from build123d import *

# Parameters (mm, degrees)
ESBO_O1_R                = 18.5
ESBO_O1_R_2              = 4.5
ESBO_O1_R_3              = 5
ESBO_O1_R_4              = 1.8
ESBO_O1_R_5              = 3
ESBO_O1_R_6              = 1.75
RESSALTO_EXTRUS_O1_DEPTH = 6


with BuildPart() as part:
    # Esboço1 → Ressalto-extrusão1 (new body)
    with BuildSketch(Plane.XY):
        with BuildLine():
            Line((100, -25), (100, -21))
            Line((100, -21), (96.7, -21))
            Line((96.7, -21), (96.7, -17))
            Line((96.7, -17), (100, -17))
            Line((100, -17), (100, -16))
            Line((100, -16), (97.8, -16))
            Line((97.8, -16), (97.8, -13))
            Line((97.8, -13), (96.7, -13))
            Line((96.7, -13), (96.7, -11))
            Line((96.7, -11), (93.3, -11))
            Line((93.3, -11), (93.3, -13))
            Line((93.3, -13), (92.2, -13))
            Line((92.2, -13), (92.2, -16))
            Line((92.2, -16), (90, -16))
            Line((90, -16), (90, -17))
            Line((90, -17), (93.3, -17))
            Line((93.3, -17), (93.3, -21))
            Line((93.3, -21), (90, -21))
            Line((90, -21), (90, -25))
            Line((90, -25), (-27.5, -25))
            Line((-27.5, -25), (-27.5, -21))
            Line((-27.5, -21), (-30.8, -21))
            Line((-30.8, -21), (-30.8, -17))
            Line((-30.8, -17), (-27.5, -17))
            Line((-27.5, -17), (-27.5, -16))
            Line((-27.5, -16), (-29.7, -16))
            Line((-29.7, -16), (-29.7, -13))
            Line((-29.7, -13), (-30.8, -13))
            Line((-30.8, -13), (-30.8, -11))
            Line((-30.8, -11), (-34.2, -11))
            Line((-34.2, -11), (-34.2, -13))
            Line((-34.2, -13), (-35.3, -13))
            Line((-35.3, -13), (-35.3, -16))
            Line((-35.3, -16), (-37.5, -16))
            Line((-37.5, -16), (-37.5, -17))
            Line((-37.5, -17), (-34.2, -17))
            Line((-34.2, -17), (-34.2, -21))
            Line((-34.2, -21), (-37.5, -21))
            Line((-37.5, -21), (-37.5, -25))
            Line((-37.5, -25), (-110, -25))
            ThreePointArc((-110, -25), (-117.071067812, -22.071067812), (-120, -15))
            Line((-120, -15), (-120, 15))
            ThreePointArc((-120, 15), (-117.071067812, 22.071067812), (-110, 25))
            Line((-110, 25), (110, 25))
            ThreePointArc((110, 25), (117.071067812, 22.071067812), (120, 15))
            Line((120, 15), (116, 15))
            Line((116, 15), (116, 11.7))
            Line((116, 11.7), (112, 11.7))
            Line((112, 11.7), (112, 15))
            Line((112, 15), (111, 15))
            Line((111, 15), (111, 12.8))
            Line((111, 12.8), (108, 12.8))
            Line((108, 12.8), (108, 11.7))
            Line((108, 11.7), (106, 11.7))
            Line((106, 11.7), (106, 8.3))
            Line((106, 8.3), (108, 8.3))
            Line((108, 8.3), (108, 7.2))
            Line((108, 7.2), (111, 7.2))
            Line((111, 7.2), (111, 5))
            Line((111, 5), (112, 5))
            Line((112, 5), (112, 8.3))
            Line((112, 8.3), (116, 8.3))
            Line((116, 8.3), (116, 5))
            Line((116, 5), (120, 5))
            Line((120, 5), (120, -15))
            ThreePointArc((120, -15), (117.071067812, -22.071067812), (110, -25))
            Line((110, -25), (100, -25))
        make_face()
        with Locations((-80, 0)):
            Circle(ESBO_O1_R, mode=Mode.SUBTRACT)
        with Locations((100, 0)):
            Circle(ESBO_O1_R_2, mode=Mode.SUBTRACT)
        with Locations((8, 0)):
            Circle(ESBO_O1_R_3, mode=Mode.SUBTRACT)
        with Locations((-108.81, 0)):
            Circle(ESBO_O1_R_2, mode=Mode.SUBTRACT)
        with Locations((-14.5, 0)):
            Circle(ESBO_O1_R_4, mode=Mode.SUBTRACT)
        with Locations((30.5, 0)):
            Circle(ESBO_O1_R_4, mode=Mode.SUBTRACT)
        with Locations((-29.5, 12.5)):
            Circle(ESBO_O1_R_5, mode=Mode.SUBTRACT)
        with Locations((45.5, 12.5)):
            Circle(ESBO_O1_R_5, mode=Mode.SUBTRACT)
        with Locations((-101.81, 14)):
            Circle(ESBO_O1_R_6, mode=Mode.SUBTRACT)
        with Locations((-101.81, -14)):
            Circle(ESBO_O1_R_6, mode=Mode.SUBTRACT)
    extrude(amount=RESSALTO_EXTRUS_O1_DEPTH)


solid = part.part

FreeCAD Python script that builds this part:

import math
import FreeCAD as App
import Part
import Sketcher
from FreeCAD import Vector
Q = App.Units.Quantity

doc = App.newDocument("Part")
body = doc.addObject("PartDesign::Body", "Body")

# Sketch on XY plane
sketch1 = body.newObject("Sketcher::SketchObject", "Sketch")
sketch1.AttachmentSupport = (doc.getObject("XY_Plane"), [""])
sketch1.MapMode = "FlatFace"
sketch1.addGeometry(Part.LineSegment(Vector(100, -21, 0), Vector(100, -25, 0)), False)
sketch1.addGeometry(Part.LineSegment(Vector(100, -25, 0), Vector(110, -25, 0)), False)
sketch1.addGeometry(Part.ArcOfCircle(Part.Circle(Vector(110, -15, 0), Vector(0, 0, 1), 10), math.radians(-90), math.radians(0)), False)
sketch1.addGeometry(Part.LineSegment(Vector(120, -15, 0), Vector(120, 5, 0)), False)
sketch1.addGeometry(Part.LineSegment(Vector(120, 5, 0), Vector(116, 5, 0)), False)
sketch1.addGeometry(Part.LineSegment(Vector(116, 5, 0), Vector(116, 8.3, 0)), False)
sketch1.addGeometry(Part.LineSegment(Vector(116, 8.3, 0), Vector(112, 8.3, 0)), False)
sketch1.addGeometry(Part.LineSegment(Vector(112, 8.3, 0), Vector(112, 5, 0)), False)
sketch1.addGeometry(Part.LineSegment(Vector(112, 5, 0), Vector(111, 5, 0)), False)
sketch1.addGeometry(Part.LineSegment(Vector(111, 5, 0), Vector(111, 7.2, 0)), False)
sketch1.addGeometry(Part.LineSegment(Vector(111, 7.2, 0), Vector(108, 7.2, 0)), False)
sketch1.addGeometry(Part.LineSegment(Vector(108, 7.2, 0), Vector(108, 8.3, 0)), False)
sketch1.addGeometry(Part.LineSegment(Vector(108, 8.3, 0), Vector(106, 8.3, 0)), False)
sketch1.addGeometry(Part.LineSegment(Vector(106, 8.3, 0), Vector(106, 11.7, 0)), False)
sketch1.addGeometry(Part.LineSegment(Vector(106, 11.7, 0), Vector(108, 11.7, 0)), False)
sketch1.addGeometry(Part.LineSegment(Vector(108, 11.7, 0), Vector(108, 12.8, 0)), False)
sketch1.addGeometry(Part.LineSegment(Vector(108, 12.8, 0), Vector(111, 12.8, 0)), False)
sketch1.addGeometry(Part.LineSegment(Vector(111, 12.8, 0), Vector(111, 15, 0)), False)
sketch1.addGeometry(Part.LineSegment(Vector(111, 15, 0), Vector(112, 15, 0)), False)
sketch1.addGeometry(Part.LineSegment(Vector(112, 15, 0), Vector(112, 11.7, 0)), False)
sketch1.addGeometry(Part.LineSegment(Vector(112, 11.7, 0), Vector(116, 11.7, 0)), False)
sketch1.addGeometry(Part.LineSegment(Vector(116, 11.7, 0), Vector(116, 15, 0)), False)
sketch1.addGeometry(Part.LineSegment(Vector(116, 15, 0), Vector(120, 15, 0)), False)
sketch1.addGeometry(Part.ArcOfCircle(Part.Circle(Vector(110, 15, 0), Vector(0, 0, 1), 10), math.radians(0), math.radians(90)), False)
sketch1.addGeometry(Part.LineSegment(Vector(110, 25, 0), Vector(-110, 25, 0)), False)
sketch1.addGeometry(Part.ArcOfCircle(Part.Circle(Vector(-110, 15, 0), Vector(0, 0, 1), 10), math.radians(90), math.radians(180)), False)
sketch1.addGeometry(Part.LineSegment(Vector(-120, 15, 0), Vector(-120, -15, 0)), False)
sketch1.addGeometry(Part.ArcOfCircle(Part.Circle(Vector(-110, -15, 0), Vector(0, 0, 1), 10), math.radians(180), math.radians(270)), False)
sketch1.addGeometry(Part.LineSegment(Vector(-110, -25, 0), Vector(-37.5, -25, 0)), False)
sketch1.addGeometry(Part.LineSegment(Vector(-37.5, -25, 0), Vector(-37.5, -21, 0)), False)
sketch1.addGeometry(Part.LineSegment(Vector(-37.5, -21, 0), Vector(-34.2, -21, 0)), False)
sketch1.addGeometry(Part.LineSegment(Vector(-34.2, -21, 0), Vector(-34.2, -17, 0)), False)
sketch1.addGeometry(Part.LineSegment(Vector(-34.2, -17, 0), Vector(-37.5, -17, 0)), False)
sketch1.addGeometry(Part.LineSegment(Vector(-37.5, -17, 0), Vector(-37.5, -16, 0)), False)
sketch1.addGeometry(Part.LineSegment(Vector(-37.5, -16, 0), Vector(-35.3, -16, 0)), False)
sketch1.addGeometry(Part.LineSegment(Vector(-35.3, -16, 0), Vector(-35.3, -13, 0)), False)
sketch1.addGeometry(Part.LineSegment(Vector(-35.3, -13, 0), Vector(-34.2, -13, 0)), False)
sketch1.addGeometry(Part.LineSegment(Vector(-34.2, -13, 0), Vector(-34.2, -11, 0)), False)
sketch1.addGeometry(Part.LineSegment(Vector(-34.2, -11, 0), Vector(-30.8, -11, 0)), False)
sketch1.addGeometry(Part.LineSegment(Vector(-30.8, -11, 0), Vector(-30.8, -13, 0)), False)
sketch1.addGeometry(Part.LineSegment(Vector(-30.8, -13, 0), Vector(-29.7, -13, 0)), False)
sketch1.addGeometry(Part.LineSegment(Vector(-29.7, -13, 0), Vector(-29.7, -16, 0)), False)
sketch1.addGeometry(Part.LineSegment(Vector(-29.7, -16, 0), Vector(-27.5, -16, 0)), False)
sketch1.addGeometry(Part.LineSegment(Vector(-27.5, -16, 0), Vector(-27.5, -17, 0)), False)
sketch1.addGeometry(Part.LineSegment(Vector(-27.5, -17, 0), Vector(-30.8, -17, 0)), False)
sketch1.addGeometry(Part.LineSegment(Vector(-30.8, -17, 0), Vector(-30.8, -21, 0)), False)
sketch1.addGeometry(Part.LineSegment(Vector(-30.8, -21, 0), Vector(-27.5, -21, 0)), False)
sketch1.addGeometry(Part.LineSegment(Vector(-27.5, -21, 0), Vector(-27.5, -25, 0)), False)
sketch1.addGeometry(Part.LineSegment(Vector(-27.5, -25, 0), Vector(90, -25, 0)), False)
sketch1.addGeometry(Part.LineSegment(Vector(90, -25, 0), Vector(90, -21, 0)), False)
sketch1.addGeometry(Part.LineSegment(Vector(90, -21, 0), Vector(93.3, -21, 0)), False)
sketch1.addGeometry(Part.LineSegment(Vector(93.3, -21, 0), Vector(93.3, -17, 0)), False)
sketch1.addGeometry(Part.LineSegment(Vector(93.3, -17, 0), Vector(90, -17, 0)), False)
sketch1.addGeometry(Part.LineSegment(Vector(90, -17, 0), Vector(90, -16, 0)), False)
sketch1.addGeometry(Part.LineSegment(Vector(90, -16, 0), Vector(92.2, -16, 0)), False)
sketch1.addGeometry(Part.LineSegment(Vector(92.2, -16, 0), Vector(92.2, -13, 0)), False)
sketch1.addGeometry(Part.LineSegment(Vector(92.2, -13, 0), Vector(93.3, -13, 0)), False)
sketch1.addGeometry(Part.LineSegment(Vector(93.3, -13, 0), Vector(93.3, -11, 0)), False)
sketch1.addGeometry(Part.LineSegment(Vector(93.3, -11, 0), Vector(96.7, -11, 0)), False)
sketch1.addGeometry(Part.LineSegment(Vector(96.7, -11, 0), Vector(96.7, -13, 0)), False)
sketch1.addGeometry(Part.LineSegment(Vector(96.7, -13, 0), Vector(97.8, -13, 0)), False)
sketch1.addGeometry(Part.LineSegment(Vector(97.8, -13, 0), Vector(97.8, -16, 0)), False)
sketch1.addGeometry(Part.LineSegment(Vector(97.8, -16, 0), Vector(100, -16, 0)), False)
sketch1.addGeometry(Part.LineSegment(Vector(100, -16, 0), Vector(100, -17, 0)), False)
sketch1.addGeometry(Part.LineSegment(Vector(100, -17, 0), Vector(96.7, -17, 0)), False)
sketch1.addGeometry(Part.LineSegment(Vector(96.7, -17, 0), Vector(96.7, -21, 0)), False)
sketch1.addGeometry(Part.LineSegment(Vector(96.7, -21, 0), Vector(100, -21, 0)), False)
sketch1.addGeometry(Part.Circle(Vector(-101.81, -14, 0), Vector(0, 0, 1), 1.75), False)
sketch1.addGeometry(Part.Circle(Vector(100, 0, 0), Vector(0, 0, 1), 4.5), False)
sketch1.addGeometry(Part.Circle(Vector(30.5, 0, 0), Vector(0, 0, 1), 1.8), False)
sketch1.addGeometry(Part.Circle(Vector(8, 0, 0), Vector(0, 0, 1), 5), False)
sketch1.addGeometry(Part.Circle(Vector(45.5, 12.5, 0), Vector(0, 0, 1), 3), False)
sketch1.addGeometry(Part.Circle(Vector(-14.5, 0, 0), Vector(0, 0, 1), 1.8), False)
sketch1.addGeometry(Part.Circle(Vector(-80, 0, 0), Vector(0, 0, 1), 18.5), False)
sketch1.addGeometry(Part.Circle(Vector(-108.81, 0, 0), Vector(0, 0, 1), 4.5), False)
sketch1.addGeometry(Part.Circle(Vector(-29.5, 12.5, 0), Vector(0, 0, 1), 3), False)
sketch1.addGeometry(Part.Circle(Vector(-101.81, 14, 0), Vector(0, 0, 1), 1.75), False)
sketch1.addConstraint(Sketcher.Constraint("Coincident", 0, 2, 1, 1))
sketch1.addConstraint(Sketcher.Constraint("Tangent", 1, 2, 2, 1))
sketch1.addConstraint(Sketcher.Constraint("Tangent", 2, 2, 3, 1))
sketch1.addConstraint(Sketcher.Constraint("Coincident", 3, 2, 4, 1))
sketch1.addConstraint(Sketcher.Constraint("Coincident", 4, 2, 5, 1))
sketch1.addConstraint(Sketcher.Constraint("Coincident", 5, 2, 6, 1))
sketch1.addConstraint(Sketcher.Constraint("Coincident", 6, 2, 7, 1))
sketch1.addConstraint(Sketcher.Constraint("Coincident", 7, 2, 8, 1))
sketch1.addConstraint(Sketcher.Constraint("Coincident", 8, 2, 9, 1))
sketch1.addConstraint(Sketcher.Constraint("Coincident", 9, 2, 10, 1))
sketch1.addConstraint(Sketcher.Constraint("Coincident", 10, 2, 11, 1))
sketch1.addConstraint(Sketcher.Constraint("Coincident", 11, 2, 12, 1))
sketch1.addConstraint(Sketcher.Constraint("Coincident", 12, 2, 13, 1))
sketch1.addConstraint(Sketcher.Constraint("Coincident", 13, 2, 14, 1))
sketch1.addConstraint(Sketcher.Constraint("Coincident", 14, 2, 15, 1))
sketch1.addConstraint(Sketcher.Constraint("Coincident", 15, 2, 16, 1))
sketch1.addConstraint(Sketcher.Constraint("Coincident", 16, 2, 17, 1))
sketch1.addConstraint(Sketcher.Constraint("Coincident", 17, 2, 18, 1))
sketch1.addConstraint(Sketcher.Constraint("Coincident", 18, 2, 19, 1))
sketch1.addConstraint(Sketcher.Constraint("Coincident", 19, 2, 20, 1))
sketch1.addConstraint(Sketcher.Constraint("Coincident", 20, 2, 21, 1))
sketch1.addConstraint(Sketcher.Constraint("Coincident", 21, 2, 22, 1))
sketch1.addConstraint(Sketcher.Constraint("Coincident", 22, 2, 23, 1))
sketch1.addConstraint(Sketcher.Constraint("Tangent", 23, 2, 24, 1))
sketch1.addConstraint(Sketcher.Constraint("Tangent", 24, 2, 25, 1))
sketch1.addConstraint(Sketcher.Constraint("Tangent", 25, 2, 26, 1))
sketch1.addConstraint(Sketcher.Constraint("Tangent", 26, 2, 27, 1))
sketch1.addConstraint(Sketcher.Constraint("Tangent", 27, 2, 28, 1))
sketch1.addConstraint(Sketcher.Constraint("Coincident", 28, 2, 29, 1))
sketch1.addConstraint(Sketcher.Constraint("Coincident", 29, 2, 30, 1))
sketch1.addConstraint(Sketcher.Constraint("Coincident", 30, 2, 31, 1))
sketch1.addConstraint(Sketcher.Constraint("Coincident", 31, 2, 32, 1))
sketch1.addConstraint(Sketcher.Constraint("Coincident", 32, 2, 33, 1))
sketch1.addConstraint(Sketcher.Constraint("Coincident", 33, 2, 34, 1))
sketch1.addConstraint(Sketcher.Constraint("Coincident", 34, 2, 35, 1))
sketch1.addConstraint(Sketcher.Constraint("Coincident", 35, 2, 36, 1))
sketch1.addConstraint(Sketcher.Constraint("Coincident", 36, 2, 37, 1))
sketch1.addConstraint(Sketcher.Constraint("Coincident", 37, 2, 38, 1))
sketch1.addConstraint(Sketcher.Constraint("Coincident", 38, 2, 39, 1))
sketch1.addConstraint(Sketcher.Constraint("Coincident", 39, 2, 40, 1))
sketch1.addConstraint(Sketcher.Constraint("Coincident", 40, 2, 41, 1))
sketch1.addConstraint(Sketcher.Constraint("Coincident", 41, 2, 42, 1))
sketch1.addConstraint(Sketcher.Constraint("Coincident", 42, 2, 43, 1))
sketch1.addConstraint(Sketcher.Constraint("Coincident", 43, 2, 44, 1))
sketch1.addConstraint(Sketcher.Constraint("Coincident", 44, 2, 45, 1))
sketch1.addConstraint(Sketcher.Constraint("Coincident", 45, 2, 46, 1))
sketch1.addConstraint(Sketcher.Constraint("Coincident", 46, 2, 47, 1))
sketch1.addConstraint(Sketcher.Constraint("Coincident", 47, 2, 48, 1))
sketch1.addConstraint(Sketcher.Constraint("Coincident", 48, 2, 49, 1))
sketch1.addConstraint(Sketcher.Constraint("Coincident", 49, 2, 50, 1))
sketch1.addConstraint(Sketcher.Constraint("Coincident", 50, 2, 51, 1))
sketch1.addConstraint(Sketcher.Constraint("Coincident", 51, 2, 52, 1))
sketch1.addConstraint(Sketcher.Constraint("Coincident", 52, 2, 53, 1))
sketch1.addConstraint(Sketcher.Constraint("Coincident", 53, 2, 54, 1))
sketch1.addConstraint(Sketcher.Constraint("Coincident", 54, 2, 55, 1))
sketch1.addConstraint(Sketcher.Constraint("Coincident", 55, 2, 56, 1))
sketch1.addConstraint(Sketcher.Constraint("Coincident", 56, 2, 57, 1))
sketch1.addConstraint(Sketcher.Constraint("Coincident", 57, 2, 58, 1))
sketch1.addConstraint(Sketcher.Constraint("Coincident", 58, 2, 59, 1))
sketch1.addConstraint(Sketcher.Constraint("Coincident", 59, 2, 60, 1))
sketch1.addConstraint(Sketcher.Constraint("Coincident", 60, 2, 61, 1))
sketch1.addConstraint(Sketcher.Constraint("Coincident", 61, 2, 62, 1))
sketch1.addConstraint(Sketcher.Constraint("Coincident", 62, 2, 63, 1))
sketch1.addConstraint(Sketcher.Constraint("Coincident", 63, 2, 64, 1))
sketch1.addConstraint(Sketcher.Constraint("Coincident", 64, 2, 65, 1))
sketch1.addConstraint(Sketcher.Constraint("Coincident", 65, 2, 66, 1))
sketch1.addConstraint(Sketcher.Constraint("Coincident", 66, 2, 0, 1))
sketch1.addConstraint(Sketcher.Constraint("Vertical", 0))
sketch1.addConstraint(Sketcher.Constraint("Horizontal", 1))
sketch1.addConstraint(Sketcher.Constraint("Vertical", 3))
sketch1.addConstraint(Sketcher.Constraint("Horizontal", 4))
sketch1.addConstraint(Sketcher.Constraint("Vertical", 5))
sketch1.addConstraint(Sketcher.Constraint("Horizontal", 6))
sketch1.addConstraint(Sketcher.Constraint("Vertical", 7))
sketch1.addConstraint(Sketcher.Constraint("Horizontal", 8))
sketch1.addConstraint(Sketcher.Constraint("Vertical", 9))
sketch1.addConstraint(Sketcher.Constraint("Horizontal", 10))
sketch1.addConstraint(Sketcher.Constraint("Vertical", 11))
sketch1.addConstraint(Sketcher.Constraint("Horizontal", 12))
sketch1.addConstraint(Sketcher.Constraint("Vertical", 13))
sketch1.addConstraint(Sketcher.Constraint("Horizontal", 14))
sketch1.addConstraint(Sketcher.Constraint("Vertical", 15))
sketch1.addConstraint(Sketcher.Constraint("Horizontal", 16))
sketch1.addConstraint(Sketcher.Constraint("Vertical", 17))
sketch1.addConstraint(Sketcher.Constraint("Horizontal", 18))
sketch1.addConstraint(Sketcher.Constraint("Vertical", 19))
sketch1.addConstraint(Sketcher.Constraint("Horizontal", 20))
sketch1.addConstraint(Sketcher.Constraint("Vertical", 21))
sketch1.addConstraint(Sketcher.Constraint("Horizontal", 22))
sketch1.addConstraint(Sketcher.Constraint("Horizontal", 24))
sketch1.addConstraint(Sketcher.Constraint("Vertical", 26))
sketch1.addConstraint(Sketcher.Constraint("Horizontal", 28))
sketch1.addConstraint(Sketcher.Constraint("Vertical", 29))
sketch1.addConstraint(Sketcher.Constraint("Horizontal", 30))
sketch1.addConstraint(Sketcher.Constraint("Vertical", 31))
sketch1.addConstraint(Sketcher.Constraint("Horizontal", 32))
sketch1.addConstraint(Sketcher.Constraint("Vertical", 33))
sketch1.addConstraint(Sketcher.Constraint("Horizontal", 34))
sketch1.addConstraint(Sketcher.Constraint("Vertical", 35))
sketch1.addConstraint(Sketcher.Constraint("Horizontal", 36))
sketch1.addConstraint(Sketcher.Constraint("Vertical", 37))
sketch1.addConstraint(Sketcher.Constraint("Horizontal", 38))
sketch1.addConstraint(Sketcher.Constraint("Vertical", 39))
sketch1.addConstraint(Sketcher.Constraint("Horizontal", 40))
sketch1.addConstraint(Sketcher.Constraint("Vertical", 41))
sketch1.addConstraint(Sketcher.Constraint("Horizontal", 42))
sketch1.addConstraint(Sketcher.Constraint("Vertical", 43))
sketch1.addConstraint(Sketcher.Constraint("Horizontal", 44))
sketch1.addConstraint(Sketcher.Constraint("Vertical", 45))
sketch1.addConstraint(Sketcher.Constraint("Horizontal", 46))
sketch1.addConstraint(Sketcher.Constraint("Vertical", 47))
sketch1.addConstraint(Sketcher.Constraint("Horizontal", 48))
sketch1.addConstraint(Sketcher.Constraint("Vertical", 49))
sketch1.addConstraint(Sketcher.Constraint("Horizontal", 50))
sketch1.addConstraint(Sketcher.Constraint("Vertical", 51))
sketch1.addConstraint(Sketcher.Constraint("Horizontal", 52))
sketch1.addConstraint(Sketcher.Constraint("Vertical", 53))
sketch1.addConstraint(Sketcher.Constraint("Horizontal", 54))
sketch1.addConstraint(Sketcher.Constraint("Vertical", 55))
sketch1.addConstraint(Sketcher.Constraint("Horizontal", 56))
sketch1.addConstraint(Sketcher.Constraint("Vertical", 57))
sketch1.addConstraint(Sketcher.Constraint("Horizontal", 58))
sketch1.addConstraint(Sketcher.Constraint("Vertical", 59))
sketch1.addConstraint(Sketcher.Constraint("Horizontal", 60))
sketch1.addConstraint(Sketcher.Constraint("Vertical", 61))
sketch1.addConstraint(Sketcher.Constraint("Horizontal", 62))
sketch1.addConstraint(Sketcher.Constraint("Vertical", 63))
sketch1.addConstraint(Sketcher.Constraint("Horizontal", 64))
sketch1.addConstraint(Sketcher.Constraint("Vertical", 65))
sketch1.addConstraint(Sketcher.Constraint("Horizontal", 66))
sketch1.addConstraint(Sketcher.Constraint("Equal", 2, 23))
sketch1.addConstraint(Sketcher.Constraint("Equal", 23, 25))
sketch1.addConstraint(Sketcher.Constraint("Equal", 25, 27))
sketch1.addConstraint(Sketcher.Constraint("Equal", 69, 72))
sketch1.addConstraint(Sketcher.Constraint("Equal", 68, 74))
sketch1.addConstraint(Sketcher.Constraint("Equal", 71, 75))
sketch1.addConstraint(Sketcher.Constraint("Equal", 67, 76))
sketch1.addConstraint(Sketcher.Constraint("Symmetric", 2, 3, 25, 3, -1, 1))
sketch1.addConstraint(Sketcher.Constraint("Symmetric", 23, 3, 27, 3, -1, 1))
sketch1.addConstraint(Sketcher.Constraint("Symmetric", 67, 3, 76, 3, -1))
sketch1.addConstraint(Sketcher.Constraint("PointOnObject", 68, 3, -1))
sketch1.addConstraint(Sketcher.Constraint("PointOnObject", 69, 3, -1))
sketch1.addConstraint(Sketcher.Constraint("PointOnObject", 70, 3, -1))
sketch1.addConstraint(Sketcher.Constraint("PointOnObject", 72, 3, -1))
sketch1.addConstraint(Sketcher.Constraint("PointOnObject", 73, 3, -1))
sketch1.addConstraint(Sketcher.Constraint("PointOnObject", 74, 3, -1))
sketch1.addConstraint(Sketcher.Constraint("Horizontal", 71, 3, 75, 3))
sketch1.addConstraint(Sketcher.Constraint("Horizontal", 4, 2, 7, 2))
sketch1.addConstraint(Sketcher.Constraint("Horizontal", 6, 2, 11, 2))
sketch1.addConstraint(Sketcher.Constraint("Horizontal", 25, 3, 17, 2))
sketch1.addConstraint(Sketcher.Constraint("Horizontal", 14, 2, 19, 2))
sketch1.addConstraint(Sketcher.Constraint("Horizontal", 18, 2, 21, 2))
sketch1.addConstraint(Sketcher.Constraint("Horizontal", 36, 2, 39, 2))
sketch1.addConstraint(Sketcher.Constraint("Horizontal", 34, 2, 41, 2))
sketch1.addConstraint(Sketcher.Constraint("Horizontal", 32, 2, 43, 2))
sketch1.addConstraint(Sketcher.Constraint("Horizontal", 30, 2, 45, 2))
sketch1.addConstraint(Sketcher.Constraint("Horizontal", 28, 2, 47, 2))
sketch1.addConstraint(Sketcher.Constraint("Horizontal", 46, 2, 49, 2))
sketch1.addConstraint(Sketcher.Constraint("Horizontal", 44, 2, 51, 2))
sketch1.addConstraint(Sketcher.Constraint("Horizontal", 42, 2, 53, 2))
sketch1.addConstraint(Sketcher.Constraint("Horizontal", 40, 2, 55, 2))
sketch1.addConstraint(Sketcher.Constraint("Horizontal", 38, 2, 57, 2))
sketch1.addConstraint(Sketcher.Constraint("Horizontal", 56, 2, 59, 2))
sketch1.addConstraint(Sketcher.Constraint("Horizontal", 54, 2, 61, 2))
sketch1.addConstraint(Sketcher.Constraint("Horizontal", 52, 2, 63, 2))
sketch1.addConstraint(Sketcher.Constraint("Horizontal", 50, 2, 65, 2))
sketch1.addConstraint(Sketcher.Constraint("Vertical", 68, 3, 0, 2))
sketch1.addConstraint(Sketcher.Constraint("Vertical", 11, 2, 14, 2))
sketch1.addConstraint(Sketcher.Constraint("Vertical", 9, 2, 16, 2))
sketch1.addConstraint(Sketcher.Constraint("Vertical", 7, 2, 18, 2))
sketch1.addConstraint(Sketcher.Constraint("Vertical", 5, 2, 20, 2))
sketch1.addConstraint(Sketcher.Constraint("Vertical", 29, 2, 32, 2))
sketch1.addConstraint(Sketcher.Constraint("Vertical", 31, 2, 36, 2))
sketch1.addConstraint(Sketcher.Constraint("Vertical", 39, 2, 44, 2))
sketch1.addConstraint(Sketcher.Constraint("Vertical", 43, 2, 46, 2))
sketch1.addConstraint(Sketcher.Constraint("Vertical", 49, 2, 52, 2))
sketch1.addConstraint(Sketcher.Constraint("Vertical", 51, 2, 56, 2))
sketch1.addConstraint(Sketcher.Constraint("Vertical", 0, 2, 62, 2))
sketch1.addConstraint(Sketcher.Constraint("Vertical", 59, 2, 64, 2))
sketch1.addConstraint(Sketcher.Constraint("Equal", 4, 6))
sketch1.addConstraint(Sketcher.Constraint("Equal", 36, 40))
sketch1.addConstraint(Sketcher.Constraint("Equal", 34, 42))
sketch1.addConstraint(Sketcher.Constraint("Equal", 46, 50))
sketch1.addConstraint(Sketcher.Constraint("Equal", 42, 54))
sketch1.addConstraint(Sketcher.Constraint("Equal", 38, 58))
sketch1.addConstraint(Sketcher.Constraint("Equal", 56, 60))
sketch1.addConstraint(Sketcher.Constraint("Equal", 54, 62))
sketch1.addConstraint(Sketcher.Constraint("Equal", 22, 0))
sketch1.addConstraint(Sketcher.Constraint("Equal", 66, 5))
sketch1.addConstraint(Sketcher.Constraint("Equal", 62, 9))
sketch1.addConstraint(Sketcher.Constraint("Equal", 58, 13))
sketch1.addConstraint(Sketcher.Constraint("Equal", 11, 15))
sketch1.addConstraint(Sketcher.Constraint("Equal", 9, 17))
sketch1.addConstraint(Sketcher.Constraint("Equal", 29, 31))
sketch1.addConstraint(Sketcher.Constraint("Equal", 18, 33))
sketch1.addConstraint(Sketcher.Constraint("Equal", 16, 35))
sketch1.addConstraint(Sketcher.Constraint("Equal", 14, 37))
sketch1.addConstraint(Sketcher.Constraint("Diameter", 68, Q("9 mm")))
sketch1.addConstraint(Sketcher.Constraint("Diameter", 70, Q("10 mm")))
sketch1.addConstraint(Sketcher.Constraint("Diameter", 71, Q("6 mm")))
sketch1.addConstraint(Sketcher.Constraint("Diameter", 73, Q("37 mm")))
sketch1.addConstraint(Sketcher.Constraint("Radius", 2, Q("10 mm")))
sketch1.addConstraint(Sketcher.Constraint("Diameter", 67, Q("3.5 mm")))
sketch1.addConstraint(Sketcher.Constraint("Diameter", 69, Q("3.6 mm")))
sketch1.addConstraint(Sketcher.Constraint("DistanceX", 1, 1, 1, 2, Q("10 mm")))
sketch1.addConstraint(Sketcher.Constraint("DistanceX", 4, 2, 4, 1, Q("4 mm")))
sketch1.addConstraint(Sketcher.Constraint("DistanceX", 8, 2, 8, 1, Q("1 mm")))
sketch1.addConstraint(Sketcher.Constraint("DistanceX", 10, 2, 10, 1, Q("3 mm")))
sketch1.addConstraint(Sketcher.Constraint("DistanceX", 12, 2, 12, 1, Q("2 mm")))
sketch1.addConstraint(Sketcher.Constraint("DistanceX", 24, 2, 24, 1, Q("220 mm")))
sketch1.addConstraint(Sketcher.Constraint("DistanceY", 3, 1, 3, 2, Q("20 mm")))
sketch1.addConstraint(Sketcher.Constraint("DistanceY", 26, 2, 26, 1, Q("30 mm")))
sketch1.addConstraint(Sketcher.Constraint("DistanceX", 28, 1, 28, 2, Q("72.5 mm")))
sketch1.addConstraint(Sketcher.Constraint("DistanceX", 30, 1, 30, 2, Q("3.3 mm")))
sketch1.addConstraint(Sketcher.Constraint("DistanceX", 34, 1, 34, 2, Q("2.2 mm")))
sketch1.addConstraint(Sketcher.Constraint("DistanceY", 67, 3, -1, 1, Q("14 mm")))
sketch1.addConstraint(Sketcher.Constraint("DistanceX", -1, 1, 70, 3, Q("8 mm")))
sketch1.addConstraint(Sketcher.Constraint("DistanceX", 73, 3, -1, 1, Q("80 mm")))
sketch1.addConstraint(Sketcher.Constraint("DistanceX", -1, 1, 69, 3, Q("30.5 mm")))
sketch1.addConstraint(Sketcher.Constraint("DistanceX", -1, 1, 71, 3, Q("45.5 mm")))
sketch1.addConstraint(Sketcher.Constraint("DistanceY", -1, 1, 71, 3, Q("12.5 mm")))
sketch1.addConstraint(Sketcher.Constraint("DistanceX", 72, 3, -1, 1, Q("14.5 mm")))
sketch1.addConstraint(Sketcher.Constraint("DistanceX", 75, 3, -1, 1, Q("29.5 mm")))
sketch1.addConstraint(Sketcher.Constraint("DistanceX", 67, 3, -1, 1, Q("101.81 mm")))
sketch1.addConstraint(Sketcher.Constraint("DistanceX", 74, 3, -1, 1, Q("108.81 mm")))
pad1 = body.newObject("PartDesign::Pad", "Pad")
pad1.Profile = sketch1
pad1.Length = 6

doc.recompute()
